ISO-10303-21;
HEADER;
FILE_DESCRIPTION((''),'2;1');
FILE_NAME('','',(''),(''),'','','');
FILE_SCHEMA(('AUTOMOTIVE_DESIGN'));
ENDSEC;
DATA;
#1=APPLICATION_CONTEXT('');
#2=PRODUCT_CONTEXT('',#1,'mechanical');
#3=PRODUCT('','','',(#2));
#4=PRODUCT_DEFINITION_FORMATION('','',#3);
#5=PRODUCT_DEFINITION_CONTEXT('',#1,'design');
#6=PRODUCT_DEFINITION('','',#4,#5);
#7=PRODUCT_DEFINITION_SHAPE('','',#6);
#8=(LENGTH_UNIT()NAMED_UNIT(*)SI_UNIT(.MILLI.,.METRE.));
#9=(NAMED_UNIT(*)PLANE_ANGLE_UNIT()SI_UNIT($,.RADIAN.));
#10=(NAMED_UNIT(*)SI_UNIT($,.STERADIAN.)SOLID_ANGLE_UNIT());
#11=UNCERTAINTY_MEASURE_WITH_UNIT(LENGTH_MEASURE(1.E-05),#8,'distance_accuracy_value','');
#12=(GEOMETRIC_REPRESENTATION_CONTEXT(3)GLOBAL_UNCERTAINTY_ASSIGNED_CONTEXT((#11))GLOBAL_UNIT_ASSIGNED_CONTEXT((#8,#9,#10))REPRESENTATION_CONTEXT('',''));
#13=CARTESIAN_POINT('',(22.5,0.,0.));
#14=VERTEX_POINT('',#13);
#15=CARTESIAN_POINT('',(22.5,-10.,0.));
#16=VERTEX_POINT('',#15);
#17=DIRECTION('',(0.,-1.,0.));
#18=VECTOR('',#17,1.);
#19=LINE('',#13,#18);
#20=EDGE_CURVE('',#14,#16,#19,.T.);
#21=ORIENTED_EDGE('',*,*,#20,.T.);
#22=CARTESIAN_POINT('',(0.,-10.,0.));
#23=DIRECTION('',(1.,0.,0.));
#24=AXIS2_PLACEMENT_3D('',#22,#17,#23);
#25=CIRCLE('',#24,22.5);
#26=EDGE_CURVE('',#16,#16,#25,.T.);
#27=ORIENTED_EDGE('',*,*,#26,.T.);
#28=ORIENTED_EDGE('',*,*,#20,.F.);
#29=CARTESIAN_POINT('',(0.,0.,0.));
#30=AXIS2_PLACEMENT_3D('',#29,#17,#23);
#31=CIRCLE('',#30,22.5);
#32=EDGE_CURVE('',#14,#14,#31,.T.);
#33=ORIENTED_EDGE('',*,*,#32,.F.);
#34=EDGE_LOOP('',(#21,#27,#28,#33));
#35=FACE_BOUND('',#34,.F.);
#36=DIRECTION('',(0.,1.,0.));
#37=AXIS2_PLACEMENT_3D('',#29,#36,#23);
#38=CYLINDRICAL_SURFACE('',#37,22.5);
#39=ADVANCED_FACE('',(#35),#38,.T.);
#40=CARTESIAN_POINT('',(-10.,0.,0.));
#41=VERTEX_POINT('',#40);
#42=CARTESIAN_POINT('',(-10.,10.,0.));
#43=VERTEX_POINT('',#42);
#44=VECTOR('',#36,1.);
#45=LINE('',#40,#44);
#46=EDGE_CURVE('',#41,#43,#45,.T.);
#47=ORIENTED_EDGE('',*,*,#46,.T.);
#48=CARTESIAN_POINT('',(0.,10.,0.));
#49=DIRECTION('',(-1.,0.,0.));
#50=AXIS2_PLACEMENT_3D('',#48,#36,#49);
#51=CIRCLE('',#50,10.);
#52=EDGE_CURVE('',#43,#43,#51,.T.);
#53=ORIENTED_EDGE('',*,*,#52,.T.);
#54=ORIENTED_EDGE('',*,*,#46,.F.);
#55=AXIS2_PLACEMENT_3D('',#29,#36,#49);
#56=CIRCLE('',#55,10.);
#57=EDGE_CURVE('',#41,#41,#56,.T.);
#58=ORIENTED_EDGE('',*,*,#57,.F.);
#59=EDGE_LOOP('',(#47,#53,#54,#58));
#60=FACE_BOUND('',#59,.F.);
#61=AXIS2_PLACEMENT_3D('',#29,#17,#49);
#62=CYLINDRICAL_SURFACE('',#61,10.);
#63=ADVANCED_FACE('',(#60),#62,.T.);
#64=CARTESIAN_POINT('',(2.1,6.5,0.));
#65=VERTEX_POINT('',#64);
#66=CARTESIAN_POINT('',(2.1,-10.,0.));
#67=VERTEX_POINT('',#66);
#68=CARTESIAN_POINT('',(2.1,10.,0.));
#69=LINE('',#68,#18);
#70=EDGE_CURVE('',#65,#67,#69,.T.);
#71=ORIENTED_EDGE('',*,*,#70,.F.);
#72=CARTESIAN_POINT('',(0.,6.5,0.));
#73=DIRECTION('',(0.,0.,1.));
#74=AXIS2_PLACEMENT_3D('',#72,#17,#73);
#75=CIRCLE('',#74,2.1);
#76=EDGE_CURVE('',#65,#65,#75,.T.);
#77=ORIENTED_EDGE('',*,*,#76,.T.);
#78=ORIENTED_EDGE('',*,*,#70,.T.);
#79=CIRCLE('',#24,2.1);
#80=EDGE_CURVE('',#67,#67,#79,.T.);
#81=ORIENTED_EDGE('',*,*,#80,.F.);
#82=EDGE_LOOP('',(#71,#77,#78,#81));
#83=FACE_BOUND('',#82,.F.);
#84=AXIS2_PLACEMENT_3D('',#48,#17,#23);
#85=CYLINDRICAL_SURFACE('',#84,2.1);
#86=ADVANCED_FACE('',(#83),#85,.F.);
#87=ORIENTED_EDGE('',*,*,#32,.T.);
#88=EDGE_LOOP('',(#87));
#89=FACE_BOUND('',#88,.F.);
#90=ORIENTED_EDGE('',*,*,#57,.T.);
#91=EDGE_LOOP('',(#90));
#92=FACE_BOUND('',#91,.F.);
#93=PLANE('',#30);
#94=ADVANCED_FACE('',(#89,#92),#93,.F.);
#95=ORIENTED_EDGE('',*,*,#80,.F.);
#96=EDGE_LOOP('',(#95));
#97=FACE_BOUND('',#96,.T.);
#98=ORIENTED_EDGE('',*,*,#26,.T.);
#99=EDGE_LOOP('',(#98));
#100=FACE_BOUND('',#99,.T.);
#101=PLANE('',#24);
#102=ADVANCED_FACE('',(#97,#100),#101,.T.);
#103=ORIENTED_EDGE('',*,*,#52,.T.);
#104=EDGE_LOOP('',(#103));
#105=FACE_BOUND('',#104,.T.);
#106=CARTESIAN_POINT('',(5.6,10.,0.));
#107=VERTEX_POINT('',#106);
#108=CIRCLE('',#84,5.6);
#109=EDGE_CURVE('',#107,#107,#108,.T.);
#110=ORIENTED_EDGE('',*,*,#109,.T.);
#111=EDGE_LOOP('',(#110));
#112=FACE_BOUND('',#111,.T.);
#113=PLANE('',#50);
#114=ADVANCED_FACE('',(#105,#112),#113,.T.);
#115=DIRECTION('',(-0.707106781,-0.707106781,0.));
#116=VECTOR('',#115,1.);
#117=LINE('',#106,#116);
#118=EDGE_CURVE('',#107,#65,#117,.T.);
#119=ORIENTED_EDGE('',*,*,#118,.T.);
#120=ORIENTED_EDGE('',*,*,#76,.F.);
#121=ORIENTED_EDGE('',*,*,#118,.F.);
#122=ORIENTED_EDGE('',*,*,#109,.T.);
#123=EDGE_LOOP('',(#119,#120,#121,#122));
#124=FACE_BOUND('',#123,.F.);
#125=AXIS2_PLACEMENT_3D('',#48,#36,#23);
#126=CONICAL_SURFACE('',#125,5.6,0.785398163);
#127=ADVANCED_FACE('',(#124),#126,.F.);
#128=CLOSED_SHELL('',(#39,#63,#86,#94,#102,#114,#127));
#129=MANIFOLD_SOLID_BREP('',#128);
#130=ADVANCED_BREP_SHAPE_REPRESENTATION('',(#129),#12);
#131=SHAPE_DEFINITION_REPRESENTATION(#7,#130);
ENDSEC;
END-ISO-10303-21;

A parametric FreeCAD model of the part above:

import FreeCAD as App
import Part
import Sketcher

V = App.Vector

doc = App.newDocument("Part")
body = doc.addObject("PartDesign::Body", "Body")

# Sketch on XZ plane
sketch1 = doc.addObject("Sketcher::SketchObject", "Sketch")
body.addObject(sketch1)
sketch1.AttachmentSupport = (doc.XZ_Plane, [""])
sketch1.MapMode = "FlatFace"
sketch1.addGeometry(Part.Circle(V(0, 0, 0), V(0, 0, 1), 22.5), False)
sketch1.addConstraint([
    Sketcher.Constraint("Coincident", 0, 3, -1, 1),
    Sketcher.Constraint("Diameter", 0, 45.0),
])
pad1 = doc.addObject("PartDesign::Pad", "Pad")
body.addObject(pad1)
pad1.Profile = sketch1
pad1.Length = 10

# Sketch on XZ plane
sketch2 = doc.addObject("Sketcher::SketchObject", "Sketch001")
body.addObject(sketch2)
sketch2.AttachmentSupport = (doc.XZ_Plane, [""])
sketch2.MapMode = "FlatFace"
sketch2.addGeometry(Part.Circle(V(0, 0, 0), V(0, 0, 1), 10), False)
sketch2.addConstraint([
    Sketcher.Constraint("Coincident", 0, 3, -1, 1),
    Sketcher.Constraint("Diameter", 0, 20.0),
])
pad2 = doc.addObject("PartDesign::Pad", "Pad001")
body.addObject(pad2)
pad2.Profile = sketch2
pad2.Length = 10
pad2.Reversed = True

# Sketch on XZ plane
sketch3 = doc.addObject("Sketcher::SketchObject", "Sketch002")
body.addObject(sketch3)
sketch3.AttachmentSupport = (doc.XZ_Plane, [""])
sketch3.MapMode = "FlatFace"
sketch3.AttachmentOffset = App.Placement(V(0, 0, -10), App.Rotation())
sketch3.addGeometry(Part.Circle(V(0, 0, 0), V(0, 0, 1), 2.1), False)
sketch3.addConstraint([
    Sketcher.Constraint("Coincident", 0, 3, -1, 1),
    Sketcher.Constraint("Diameter", 0, 4.2),
])
doc.recompute()
hole = doc.addObject("PartDesign::Hole", "Hole")
body.addObject(hole)
hole.Profile = sketch3
hole.ThreadType = "None"
hole.Diameter = 4.2
hole.DepthType = "ThroughAll"
hole.HoleCutType = "Countersink"
hole.HoleCutDiameter = 11.2
hole.HoleCutCountersinkAngle = 90
hole.Reversed = True

doc.recompute()
